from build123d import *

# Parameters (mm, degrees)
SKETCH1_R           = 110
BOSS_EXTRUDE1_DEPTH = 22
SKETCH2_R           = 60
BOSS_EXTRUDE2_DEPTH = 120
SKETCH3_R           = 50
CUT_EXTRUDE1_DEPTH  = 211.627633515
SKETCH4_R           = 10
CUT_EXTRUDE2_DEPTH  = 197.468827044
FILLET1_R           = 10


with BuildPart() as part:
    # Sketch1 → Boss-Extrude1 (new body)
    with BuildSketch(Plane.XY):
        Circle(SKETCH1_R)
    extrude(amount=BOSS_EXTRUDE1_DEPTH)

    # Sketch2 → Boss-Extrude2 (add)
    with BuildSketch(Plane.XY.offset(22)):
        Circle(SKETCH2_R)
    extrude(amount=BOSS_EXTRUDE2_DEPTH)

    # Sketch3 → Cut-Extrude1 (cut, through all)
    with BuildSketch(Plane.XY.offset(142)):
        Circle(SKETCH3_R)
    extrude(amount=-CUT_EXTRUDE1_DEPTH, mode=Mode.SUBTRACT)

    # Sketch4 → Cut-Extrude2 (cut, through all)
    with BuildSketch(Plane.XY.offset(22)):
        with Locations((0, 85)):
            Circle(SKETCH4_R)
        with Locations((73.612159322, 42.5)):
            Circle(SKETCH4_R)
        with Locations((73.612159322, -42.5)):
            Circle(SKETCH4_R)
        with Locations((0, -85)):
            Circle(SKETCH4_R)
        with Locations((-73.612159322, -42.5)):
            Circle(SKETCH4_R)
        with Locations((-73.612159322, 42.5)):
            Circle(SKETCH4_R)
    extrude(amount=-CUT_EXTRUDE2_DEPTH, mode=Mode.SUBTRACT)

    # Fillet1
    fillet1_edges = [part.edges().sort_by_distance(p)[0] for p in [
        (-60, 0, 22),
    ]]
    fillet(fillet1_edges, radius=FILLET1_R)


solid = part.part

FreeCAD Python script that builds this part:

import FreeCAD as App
import Part
import Sketcher
from FreeCAD import Vector


def edges_at(feature, points):
    """Names of the edges that pass closest to the given points."""
    edges = feature.Shape.Edges
    near = lambda p: min(range(len(edges)), key=lambda i: edges[i].distToShape(Part.Vertex(*p))[0])
    return sorted({f"Edge{near(p) + 1}" for p in points})

doc = App.newDocument("Part")
body = doc.addObject("PartDesign::Body", "Body")

# Sketch on XY plane
sketch1 = body.newObject("Sketcher::SketchObject", "Sketch")
sketch1.AttachmentSupport = (doc.getObject("XY_Plane"), [""])
sketch1.MapMode = "FlatFace"
sketch1.addGeometry(Part.Circle(Vector(0, 0, 0), Vector(0, 0, 1), 110), False)
sketch1.addConstraint(Sketcher.Constraint("Coincident", 0, 3, -1, 1))
sketch1.addConstraint(Sketcher.Constraint("Diameter", 0, 220.0))
pad1 = body.newObject("PartDesign::Pad", "Pad")
pad1.Profile = sketch1
pad1.Length = 22

# Sketch on XY plane
sketch2 = body.newObject("Sketcher::SketchObject", "Sketch001")
sketch2.AttachmentSupport = (doc.getObject("XY_Plane"), [""])
sketch2.MapMode = "FlatFace"
sketch2.AttachmentOffset = App.Placement(Vector(0, 0, 22), App.Rotation())
sketch2.addGeometry(Part.Circle(Vector(0, 0, 0), Vector(0, 0, 1), 60), False)
sketch2.addConstraint(Sketcher.Constraint("Coincident", 0, 3, -1, 1))
sketch2.addConstraint(Sketcher.Constraint("Diameter", 0, 120.0))
pad2 = body.newObject("PartDesign::Pad", "Pad001")
pad2.Profile = sketch2
pad2.Length = 120

# Sketch on XY plane
sketch3 = body.newObject("Sketcher::SketchObject", "Sketch002")
sketch3.AttachmentSupport = (doc.getObject("XY_Plane"), [""])
sketch3.MapMode = "FlatFace"
sketch3.AttachmentOffset = App.Placement(Vector(0, 0, 142), App.Rotation())
sketch3.addGeometry(Part.Circle(Vector(0, 0, 0), Vector(0, 0, 1), 50), False)
sketch3.addConstraint(Sketcher.Constraint("Coincident", 0, 3, -1, 1))
sketch3.addConstraint(Sketcher.Constraint("Diameter", 0, 100.0))
pocket1 = body.newObject("PartDesign::Pocket", "Pocket")
pocket1.Profile = sketch3
pocket1.Type = "ThroughAll"

# Sketch on XY plane
sketch4 = body.newObject("Sketcher::SketchObject", "Sketch003")
sketch4.AttachmentSupport = (doc.getObject("XY_Plane"), [""])
sketch4.MapMode = "FlatFace"
sketch4.AttachmentOffset = App.Placement(Vector(0, 0, 22), App.Rotation())
sketch4.addGeometry(Part.Circle(Vector(0, 85, 0), Vector(0, 0, 1), 10), False)
sketch4.addGeometry(Part.Circle(Vector(73.612159, 42.5, 0), Vector(0, 0, 1), 10), False)
sketch4.addGeometry(Part.Circle(Vector(73.612159, -42.5, 0), Vector(0, 0, 1), 10), False)
sketch4.addGeometry(Part.Circle(Vector(0, -85, 0), Vector(0, 0, 1), 10), False)
sketch4.addGeometry(Part.Circle(Vector(-73.612159, -42.5, 0), Vector(0, 0, 1), 10), False)
sketch4.addGeometry(Part.Circle(Vector(-73.612159, 42.5, 0), Vector(0, 0, 1), 10), False)
sketch4.addConstraint(Sketcher.Constraint("Equal", 0, 1))
sketch4.addConstraint(Sketcher.Constraint("Equal", 1, 2))
sketch4.addConstraint(Sketcher.Constraint("Equal", 2, 3))
sketch4.addConstraint(Sketcher.Constraint("Equal", 3, 4))
sketch4.addConstraint(Sketcher.Constraint("Equal", 4, 5))
sketch4.addConstraint(Sketcher.Constraint("Symmetric", 0, 3, 3, 3, -1, 1))
sketch4.addConstraint(Sketcher.Constraint("Symmetric", 1, 3, 4, 3, -1, 1))
sketch4.addConstraint(Sketcher.Constraint("Symmetric", 2, 3, 5, 3, -1, 1))
sketch4.addConstraint(Sketcher.Constraint("Symmetric", 2, 3, 4, 3, -2))
sketch4.addConstraint(Sketcher.Constraint("PointOnObject", 0, 3, -2))
sketch4.addConstraint(Sketcher.Constraint("Diameter", 0, 20.0))
sketch4.addConstraint(Sketcher.Constraint("DistanceY", -1, 1, 0, 3, 85.0))
sketch4.addConstraint(Sketcher.Constraint("DistanceY", 2, 3, 1, 3, 85.0))
sketch4.addConstraint(Sketcher.Constraint("DistanceX", -1, 1, 1, 3, 73.612159))
pocket2 = body.newObject("PartDesign::Pocket", "Pocket001")
pocket2.Profile = sketch4
pocket2.Type = "ThroughAll"
doc.recompute()

fillet = body.newObject("PartDesign::Fillet", "Fillet")
fillet.Base = (pocket2, edges_at(pocket2, [(-60, 0, 22)]))
fillet.Radius = 10

doc.recompute()
